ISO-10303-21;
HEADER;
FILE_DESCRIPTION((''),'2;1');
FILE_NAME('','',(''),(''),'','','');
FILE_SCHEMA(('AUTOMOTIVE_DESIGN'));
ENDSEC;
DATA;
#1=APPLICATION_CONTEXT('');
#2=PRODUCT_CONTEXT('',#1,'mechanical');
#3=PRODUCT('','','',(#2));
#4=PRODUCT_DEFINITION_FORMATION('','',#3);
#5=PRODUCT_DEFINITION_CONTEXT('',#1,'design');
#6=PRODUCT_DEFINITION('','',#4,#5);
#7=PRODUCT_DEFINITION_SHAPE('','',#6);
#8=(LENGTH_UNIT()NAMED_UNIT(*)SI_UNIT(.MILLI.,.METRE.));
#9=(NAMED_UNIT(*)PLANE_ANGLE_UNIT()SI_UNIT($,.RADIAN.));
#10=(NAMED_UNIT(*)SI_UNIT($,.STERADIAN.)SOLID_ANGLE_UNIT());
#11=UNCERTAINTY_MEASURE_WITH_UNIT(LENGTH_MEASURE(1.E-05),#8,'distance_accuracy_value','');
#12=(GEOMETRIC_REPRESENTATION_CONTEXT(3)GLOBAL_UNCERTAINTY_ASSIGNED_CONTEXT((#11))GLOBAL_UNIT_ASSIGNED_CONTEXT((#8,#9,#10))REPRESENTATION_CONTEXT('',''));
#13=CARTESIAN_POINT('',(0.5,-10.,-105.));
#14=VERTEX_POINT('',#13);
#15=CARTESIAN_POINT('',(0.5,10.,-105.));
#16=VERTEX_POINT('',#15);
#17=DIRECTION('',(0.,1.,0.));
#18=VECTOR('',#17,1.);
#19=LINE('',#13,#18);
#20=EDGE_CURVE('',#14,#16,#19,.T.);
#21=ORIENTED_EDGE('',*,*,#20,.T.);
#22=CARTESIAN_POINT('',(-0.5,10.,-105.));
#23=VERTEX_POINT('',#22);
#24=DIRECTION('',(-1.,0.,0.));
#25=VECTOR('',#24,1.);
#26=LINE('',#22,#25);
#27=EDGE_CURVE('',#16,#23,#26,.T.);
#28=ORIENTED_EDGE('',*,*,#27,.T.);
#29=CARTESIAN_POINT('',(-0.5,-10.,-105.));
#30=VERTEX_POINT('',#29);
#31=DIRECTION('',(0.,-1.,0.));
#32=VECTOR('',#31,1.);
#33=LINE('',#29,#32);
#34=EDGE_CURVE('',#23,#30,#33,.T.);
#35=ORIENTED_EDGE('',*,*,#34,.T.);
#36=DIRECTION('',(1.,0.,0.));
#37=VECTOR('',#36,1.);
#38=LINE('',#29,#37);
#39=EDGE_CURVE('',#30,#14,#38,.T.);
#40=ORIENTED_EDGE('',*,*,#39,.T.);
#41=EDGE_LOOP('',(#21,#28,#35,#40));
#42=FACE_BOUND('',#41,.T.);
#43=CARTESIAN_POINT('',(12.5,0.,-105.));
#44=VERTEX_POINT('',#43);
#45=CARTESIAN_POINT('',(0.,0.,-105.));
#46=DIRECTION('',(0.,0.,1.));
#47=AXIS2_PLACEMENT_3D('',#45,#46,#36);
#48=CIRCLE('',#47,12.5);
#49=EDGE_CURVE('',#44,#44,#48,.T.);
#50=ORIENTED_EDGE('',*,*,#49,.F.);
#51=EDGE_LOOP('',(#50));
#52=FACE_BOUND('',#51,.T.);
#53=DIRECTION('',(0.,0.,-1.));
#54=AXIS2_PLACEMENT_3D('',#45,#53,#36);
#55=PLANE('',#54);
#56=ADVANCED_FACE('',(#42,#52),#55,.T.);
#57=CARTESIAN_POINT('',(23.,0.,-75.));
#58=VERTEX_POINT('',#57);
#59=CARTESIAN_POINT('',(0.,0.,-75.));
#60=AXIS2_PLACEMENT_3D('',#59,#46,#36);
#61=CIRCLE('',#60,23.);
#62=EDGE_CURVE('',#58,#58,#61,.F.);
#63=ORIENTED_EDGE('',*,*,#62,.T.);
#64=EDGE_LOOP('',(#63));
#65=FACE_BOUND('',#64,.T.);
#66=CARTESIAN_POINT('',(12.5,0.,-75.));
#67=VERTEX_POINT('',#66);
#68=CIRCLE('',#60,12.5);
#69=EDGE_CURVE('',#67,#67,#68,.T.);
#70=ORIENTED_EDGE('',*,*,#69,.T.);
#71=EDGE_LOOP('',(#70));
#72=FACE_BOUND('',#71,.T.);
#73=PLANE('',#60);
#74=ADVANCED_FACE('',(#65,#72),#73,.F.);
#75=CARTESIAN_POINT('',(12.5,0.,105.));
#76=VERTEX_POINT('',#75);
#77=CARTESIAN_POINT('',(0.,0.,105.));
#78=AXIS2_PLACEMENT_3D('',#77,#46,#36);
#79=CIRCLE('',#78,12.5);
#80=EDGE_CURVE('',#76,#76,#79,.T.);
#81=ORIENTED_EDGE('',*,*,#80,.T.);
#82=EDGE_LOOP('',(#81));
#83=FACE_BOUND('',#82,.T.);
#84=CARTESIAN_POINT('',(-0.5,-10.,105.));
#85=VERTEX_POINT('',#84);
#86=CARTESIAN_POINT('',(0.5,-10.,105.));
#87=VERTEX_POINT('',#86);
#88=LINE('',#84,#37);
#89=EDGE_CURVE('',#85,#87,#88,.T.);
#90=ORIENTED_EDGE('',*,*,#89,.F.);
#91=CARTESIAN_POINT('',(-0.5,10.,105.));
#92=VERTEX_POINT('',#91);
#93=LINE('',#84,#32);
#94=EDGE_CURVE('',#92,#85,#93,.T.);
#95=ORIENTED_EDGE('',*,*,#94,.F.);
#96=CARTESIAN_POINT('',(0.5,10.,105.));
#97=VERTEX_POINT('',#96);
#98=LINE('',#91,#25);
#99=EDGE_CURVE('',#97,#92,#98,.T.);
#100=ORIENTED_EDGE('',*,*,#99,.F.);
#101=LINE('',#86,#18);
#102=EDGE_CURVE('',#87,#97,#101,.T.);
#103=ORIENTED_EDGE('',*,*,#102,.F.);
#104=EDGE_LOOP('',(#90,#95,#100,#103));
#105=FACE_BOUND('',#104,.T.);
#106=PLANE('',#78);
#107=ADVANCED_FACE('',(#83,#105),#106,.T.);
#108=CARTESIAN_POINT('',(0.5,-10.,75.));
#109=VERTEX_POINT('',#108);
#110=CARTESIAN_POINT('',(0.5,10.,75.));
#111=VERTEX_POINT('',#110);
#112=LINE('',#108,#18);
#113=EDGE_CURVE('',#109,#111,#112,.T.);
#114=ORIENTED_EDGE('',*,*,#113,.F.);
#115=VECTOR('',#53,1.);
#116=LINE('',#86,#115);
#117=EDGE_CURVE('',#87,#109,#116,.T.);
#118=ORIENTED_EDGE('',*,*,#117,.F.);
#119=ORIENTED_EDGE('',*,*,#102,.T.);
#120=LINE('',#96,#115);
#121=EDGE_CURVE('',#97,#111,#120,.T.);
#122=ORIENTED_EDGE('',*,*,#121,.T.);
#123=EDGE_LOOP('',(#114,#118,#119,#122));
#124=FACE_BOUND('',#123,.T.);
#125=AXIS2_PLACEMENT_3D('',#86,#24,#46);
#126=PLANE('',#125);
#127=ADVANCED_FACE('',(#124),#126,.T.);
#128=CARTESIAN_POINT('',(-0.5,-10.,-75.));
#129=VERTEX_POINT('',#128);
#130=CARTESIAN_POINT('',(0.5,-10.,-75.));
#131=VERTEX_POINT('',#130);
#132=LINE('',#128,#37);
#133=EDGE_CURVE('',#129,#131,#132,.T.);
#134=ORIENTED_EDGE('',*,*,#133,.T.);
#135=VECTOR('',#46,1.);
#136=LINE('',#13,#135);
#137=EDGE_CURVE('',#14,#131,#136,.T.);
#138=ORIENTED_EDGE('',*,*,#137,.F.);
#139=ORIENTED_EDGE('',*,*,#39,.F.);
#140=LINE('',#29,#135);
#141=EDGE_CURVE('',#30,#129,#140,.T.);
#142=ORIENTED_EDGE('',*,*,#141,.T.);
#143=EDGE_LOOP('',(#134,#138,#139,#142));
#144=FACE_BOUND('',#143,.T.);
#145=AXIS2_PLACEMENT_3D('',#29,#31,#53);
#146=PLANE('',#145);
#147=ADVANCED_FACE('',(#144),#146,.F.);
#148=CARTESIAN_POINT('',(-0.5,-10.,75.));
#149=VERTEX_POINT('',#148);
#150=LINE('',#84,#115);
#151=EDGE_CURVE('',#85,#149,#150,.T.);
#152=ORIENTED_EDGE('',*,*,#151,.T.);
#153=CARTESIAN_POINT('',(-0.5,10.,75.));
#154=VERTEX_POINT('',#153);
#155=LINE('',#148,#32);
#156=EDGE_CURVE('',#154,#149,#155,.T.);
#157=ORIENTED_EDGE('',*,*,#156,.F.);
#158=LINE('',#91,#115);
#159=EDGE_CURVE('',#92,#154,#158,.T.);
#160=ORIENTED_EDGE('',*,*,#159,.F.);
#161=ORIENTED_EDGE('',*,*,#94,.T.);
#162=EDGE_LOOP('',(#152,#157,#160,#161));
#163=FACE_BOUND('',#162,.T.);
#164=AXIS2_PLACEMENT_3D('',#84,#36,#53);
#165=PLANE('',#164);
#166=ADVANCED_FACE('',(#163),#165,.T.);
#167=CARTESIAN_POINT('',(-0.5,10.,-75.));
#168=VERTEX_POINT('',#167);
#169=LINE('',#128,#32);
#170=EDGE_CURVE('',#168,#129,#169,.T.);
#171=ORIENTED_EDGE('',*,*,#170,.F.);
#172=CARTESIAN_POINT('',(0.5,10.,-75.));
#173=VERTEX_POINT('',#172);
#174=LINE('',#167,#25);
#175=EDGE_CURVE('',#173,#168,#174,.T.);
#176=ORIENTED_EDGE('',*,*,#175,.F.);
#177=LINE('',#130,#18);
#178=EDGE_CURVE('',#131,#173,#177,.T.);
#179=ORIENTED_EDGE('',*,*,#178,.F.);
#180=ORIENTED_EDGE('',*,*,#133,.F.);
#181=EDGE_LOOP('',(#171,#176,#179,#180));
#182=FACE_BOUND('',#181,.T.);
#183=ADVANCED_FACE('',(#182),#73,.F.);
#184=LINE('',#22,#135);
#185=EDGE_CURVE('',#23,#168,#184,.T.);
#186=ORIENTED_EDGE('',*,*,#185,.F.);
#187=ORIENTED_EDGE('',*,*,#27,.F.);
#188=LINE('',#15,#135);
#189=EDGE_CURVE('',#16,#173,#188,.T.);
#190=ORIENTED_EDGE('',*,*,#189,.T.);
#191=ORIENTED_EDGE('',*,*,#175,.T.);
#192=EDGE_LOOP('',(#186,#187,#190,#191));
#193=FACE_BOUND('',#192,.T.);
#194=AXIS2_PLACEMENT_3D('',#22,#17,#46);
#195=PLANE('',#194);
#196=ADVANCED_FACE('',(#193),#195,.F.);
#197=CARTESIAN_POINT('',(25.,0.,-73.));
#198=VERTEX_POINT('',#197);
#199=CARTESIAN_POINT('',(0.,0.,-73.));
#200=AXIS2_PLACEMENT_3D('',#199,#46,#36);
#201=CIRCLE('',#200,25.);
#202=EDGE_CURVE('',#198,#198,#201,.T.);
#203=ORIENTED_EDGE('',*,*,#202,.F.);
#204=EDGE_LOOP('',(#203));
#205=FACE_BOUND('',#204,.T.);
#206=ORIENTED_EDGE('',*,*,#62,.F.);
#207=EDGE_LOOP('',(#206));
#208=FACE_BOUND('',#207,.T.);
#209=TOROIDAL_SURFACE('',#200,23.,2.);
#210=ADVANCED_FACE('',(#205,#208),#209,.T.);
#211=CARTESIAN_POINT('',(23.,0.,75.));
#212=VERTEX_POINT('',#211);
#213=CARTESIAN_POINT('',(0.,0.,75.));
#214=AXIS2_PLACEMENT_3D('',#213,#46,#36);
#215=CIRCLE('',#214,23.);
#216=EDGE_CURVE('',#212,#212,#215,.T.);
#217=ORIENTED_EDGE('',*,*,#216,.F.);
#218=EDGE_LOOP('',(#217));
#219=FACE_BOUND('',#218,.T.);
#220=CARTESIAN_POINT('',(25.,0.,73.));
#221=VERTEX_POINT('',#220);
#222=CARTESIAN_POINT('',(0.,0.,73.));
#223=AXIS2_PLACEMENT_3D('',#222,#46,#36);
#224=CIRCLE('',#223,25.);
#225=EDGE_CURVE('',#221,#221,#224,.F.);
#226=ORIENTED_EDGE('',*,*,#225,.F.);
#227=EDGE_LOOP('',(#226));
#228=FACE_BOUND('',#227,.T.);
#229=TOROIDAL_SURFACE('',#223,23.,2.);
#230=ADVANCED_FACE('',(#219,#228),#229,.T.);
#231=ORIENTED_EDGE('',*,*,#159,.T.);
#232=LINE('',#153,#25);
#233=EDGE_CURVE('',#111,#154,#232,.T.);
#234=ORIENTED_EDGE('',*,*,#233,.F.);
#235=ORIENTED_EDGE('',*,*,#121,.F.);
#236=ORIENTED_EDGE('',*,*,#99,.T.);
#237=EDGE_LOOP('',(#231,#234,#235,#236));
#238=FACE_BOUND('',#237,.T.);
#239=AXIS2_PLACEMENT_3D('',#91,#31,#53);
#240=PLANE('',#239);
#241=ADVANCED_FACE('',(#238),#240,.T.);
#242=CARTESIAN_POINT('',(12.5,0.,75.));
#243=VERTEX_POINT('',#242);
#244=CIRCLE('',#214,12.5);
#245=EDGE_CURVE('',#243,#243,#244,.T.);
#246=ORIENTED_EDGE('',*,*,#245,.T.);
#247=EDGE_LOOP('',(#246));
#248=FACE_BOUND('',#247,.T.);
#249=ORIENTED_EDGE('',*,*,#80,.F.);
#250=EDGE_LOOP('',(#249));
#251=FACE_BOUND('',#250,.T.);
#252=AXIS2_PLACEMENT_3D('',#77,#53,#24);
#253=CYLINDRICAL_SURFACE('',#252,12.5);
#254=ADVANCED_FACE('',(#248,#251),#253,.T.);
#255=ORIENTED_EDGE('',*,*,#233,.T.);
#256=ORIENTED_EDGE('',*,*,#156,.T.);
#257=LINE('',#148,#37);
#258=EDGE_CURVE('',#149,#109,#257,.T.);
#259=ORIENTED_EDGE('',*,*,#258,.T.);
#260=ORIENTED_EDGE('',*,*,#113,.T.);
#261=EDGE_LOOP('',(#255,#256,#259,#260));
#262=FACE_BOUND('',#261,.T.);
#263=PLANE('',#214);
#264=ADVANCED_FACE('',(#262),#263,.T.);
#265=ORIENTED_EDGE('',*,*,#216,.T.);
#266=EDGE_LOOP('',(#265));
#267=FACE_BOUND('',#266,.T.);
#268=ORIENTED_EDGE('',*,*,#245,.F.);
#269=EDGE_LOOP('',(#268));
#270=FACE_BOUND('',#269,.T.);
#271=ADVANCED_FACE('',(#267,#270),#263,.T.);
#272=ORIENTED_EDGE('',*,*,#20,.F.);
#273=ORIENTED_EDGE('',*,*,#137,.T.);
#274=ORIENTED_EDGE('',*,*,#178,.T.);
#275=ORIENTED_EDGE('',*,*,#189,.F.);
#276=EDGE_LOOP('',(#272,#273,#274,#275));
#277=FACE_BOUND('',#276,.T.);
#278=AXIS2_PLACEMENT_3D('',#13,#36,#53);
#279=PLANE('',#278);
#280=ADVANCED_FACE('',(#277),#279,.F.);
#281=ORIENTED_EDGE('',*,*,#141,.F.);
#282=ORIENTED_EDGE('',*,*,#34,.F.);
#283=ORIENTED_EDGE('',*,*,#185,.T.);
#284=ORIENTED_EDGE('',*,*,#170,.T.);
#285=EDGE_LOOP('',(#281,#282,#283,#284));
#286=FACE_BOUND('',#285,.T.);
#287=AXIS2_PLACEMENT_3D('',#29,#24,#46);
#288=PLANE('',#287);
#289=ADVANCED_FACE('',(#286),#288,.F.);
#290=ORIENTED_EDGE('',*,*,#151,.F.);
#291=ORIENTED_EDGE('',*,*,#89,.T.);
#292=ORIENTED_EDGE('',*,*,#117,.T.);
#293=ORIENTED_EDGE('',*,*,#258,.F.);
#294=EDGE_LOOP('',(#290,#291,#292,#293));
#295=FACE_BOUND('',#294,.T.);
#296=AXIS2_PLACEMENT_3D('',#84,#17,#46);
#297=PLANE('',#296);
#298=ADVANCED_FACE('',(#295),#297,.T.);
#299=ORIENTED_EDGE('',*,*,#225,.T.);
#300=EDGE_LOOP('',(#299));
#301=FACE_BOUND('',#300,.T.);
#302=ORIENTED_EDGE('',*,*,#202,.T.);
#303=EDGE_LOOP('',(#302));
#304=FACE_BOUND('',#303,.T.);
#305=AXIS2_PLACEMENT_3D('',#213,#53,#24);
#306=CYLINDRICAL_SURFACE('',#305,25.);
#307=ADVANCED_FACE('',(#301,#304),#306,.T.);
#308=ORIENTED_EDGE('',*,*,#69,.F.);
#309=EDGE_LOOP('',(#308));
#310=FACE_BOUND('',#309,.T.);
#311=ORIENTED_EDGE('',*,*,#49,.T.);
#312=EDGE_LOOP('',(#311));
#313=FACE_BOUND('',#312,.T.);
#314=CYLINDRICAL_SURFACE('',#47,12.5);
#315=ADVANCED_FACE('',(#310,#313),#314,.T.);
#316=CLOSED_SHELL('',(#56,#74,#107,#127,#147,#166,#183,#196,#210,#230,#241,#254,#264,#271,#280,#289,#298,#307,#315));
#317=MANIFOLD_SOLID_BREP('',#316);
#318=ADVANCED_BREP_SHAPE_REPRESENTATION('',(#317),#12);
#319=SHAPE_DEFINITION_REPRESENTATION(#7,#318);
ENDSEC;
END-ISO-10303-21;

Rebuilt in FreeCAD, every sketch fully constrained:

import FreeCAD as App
import Part
import Sketcher

V = App.Vector
Q = App.Units.Quantity


def edges_at(feature, points):
    """Names of the edges that pass closest to the given points."""
    edges = feature.Shape.Edges
    near = lambda p: min(range(len(edges)), key=lambda i: edges[i].distToShape(Part.Vertex(*p))[0])
    return sorted({f"Edge{near(p) + 1}" for p in points})

doc = App.newDocument("Part")
body = doc.addObject("PartDesign::Body", "Body")

# Sketch on XY plane
sketch1 = body.newObject("Sketcher::SketchObject", "Sketch")
sketch1.AttachmentSupport = (doc.getObject("XY_Plane"), [""])
sketch1.MapMode = "FlatFace"
sketch1.addGeometry(Part.Circle(V(0, 0, 0), V(0, 0, 1), 25), False)
sketch1.addConstraint([
    Sketcher.Constraint("Coincident", 0, 3, -1, 1),
    Sketcher.Constraint("Diameter", 0, Q("50 mm")),
])
pad1 = body.newObject("PartDesign::Pad", "Pad")
pad1.Profile = sketch1
pad1.Length = 150
pad1.Midplane = True

# Sketch on XY plane
sketch2 = body.newObject("Sketcher::SketchObject", "Sketch001")
sketch2.AttachmentSupport = (doc.getObject("XY_Plane"), [""])
sketch2.MapMode = "FlatFace"
sketch2.AttachmentOffset = App.Placement(V(0, 0, 75), App.Rotation())
sketch2.addGeometry([
    Part.Circle(V(0, 0, 0), V(0, 0, 1), 12.5),  # 0
    Part.LineSegment(V(0.5, -10, 0), V(-0.5, -10, 0)),  # 1
    Part.LineSegment(V(-0.5, -10, 0), V(-0.5, 10, 0)),  # 2
    Part.LineSegment(V(-0.5, 10, 0), V(0.5, 10, 0)),  # 3
    Part.LineSegment(V(0.5, 10, 0), V(0.5, -10, 0)),  # 4
], False)
sketch2.addConstraint([
    Sketcher.Constraint("Coincident", 1, 2, 2, 1),
    Sketcher.Constraint("Coincident", 2, 2, 3, 1),
    Sketcher.Constraint("Coincident", 3, 2, 4, 1),
    Sketcher.Constraint("Coincident", 4, 2, 1, 1),
    Sketcher.Constraint("Horizontal", 1),
    Sketcher.Constraint("Vertical", 2),
    Sketcher.Constraint("Horizontal", 3),
    Sketcher.Constraint("Vertical", 4),
    Sketcher.Constraint("Coincident", 0, 3, -1, 1),
    Sketcher.Constraint("Symmetric", 1, 2, 3, 2, -1, 1),
    Sketcher.Constraint("Diameter", 0, Q("25 mm")),
    Sketcher.Constraint("DistanceX", 1, 2, 1, 1, Q("1 mm")),
    Sketcher.Constraint("DistanceY", 2, 1, 2, 2, Q("20 mm")),
])
pad2 = body.newObject("PartDesign::Pad", "Pad001")
pad2.Profile = sketch2
pad2.Length = 30
doc.recompute()

mirrored = body.newObject("PartDesign::Mirrored", "Mirrored")
mirrored.Originals = [pad2]
mirrored.MirrorPlane = (doc.getObject("XY_Plane"), [""])
body.Tip = mirrored
doc.recompute()

fillet = body.newObject("PartDesign::Fillet", "Fillet")
fillet.Base = (mirrored, edges_at(mirrored, [(-25, 0, -75), (-25, 0, 75)]))
fillet.Radius = 2

doc.recompute()
